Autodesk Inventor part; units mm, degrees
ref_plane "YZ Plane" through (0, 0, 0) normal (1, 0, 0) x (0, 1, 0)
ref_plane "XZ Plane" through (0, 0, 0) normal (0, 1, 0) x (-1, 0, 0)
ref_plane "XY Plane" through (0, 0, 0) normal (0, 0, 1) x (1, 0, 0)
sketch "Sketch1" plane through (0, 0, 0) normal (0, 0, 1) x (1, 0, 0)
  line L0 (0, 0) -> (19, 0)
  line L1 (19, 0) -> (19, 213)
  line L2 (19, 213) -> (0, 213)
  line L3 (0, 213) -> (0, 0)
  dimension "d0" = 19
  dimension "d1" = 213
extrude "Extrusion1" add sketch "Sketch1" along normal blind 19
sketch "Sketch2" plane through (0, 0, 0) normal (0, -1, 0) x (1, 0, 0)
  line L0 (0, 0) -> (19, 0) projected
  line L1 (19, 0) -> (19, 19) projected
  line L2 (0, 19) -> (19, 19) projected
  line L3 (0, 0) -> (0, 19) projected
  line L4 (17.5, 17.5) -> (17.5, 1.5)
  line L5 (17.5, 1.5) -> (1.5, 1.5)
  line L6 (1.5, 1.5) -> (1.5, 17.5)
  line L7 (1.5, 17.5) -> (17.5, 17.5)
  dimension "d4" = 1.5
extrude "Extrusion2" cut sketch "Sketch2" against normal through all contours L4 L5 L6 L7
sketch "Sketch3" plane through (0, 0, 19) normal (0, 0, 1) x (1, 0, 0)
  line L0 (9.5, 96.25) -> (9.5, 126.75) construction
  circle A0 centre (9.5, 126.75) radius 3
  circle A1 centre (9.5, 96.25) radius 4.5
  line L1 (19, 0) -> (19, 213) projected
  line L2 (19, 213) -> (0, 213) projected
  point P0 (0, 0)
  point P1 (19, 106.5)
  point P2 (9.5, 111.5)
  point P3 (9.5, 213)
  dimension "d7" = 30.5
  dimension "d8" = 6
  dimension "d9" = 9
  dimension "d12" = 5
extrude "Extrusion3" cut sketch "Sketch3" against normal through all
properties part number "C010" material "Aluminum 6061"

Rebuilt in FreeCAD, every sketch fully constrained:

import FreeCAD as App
import Part
import Sketcher
from FreeCAD import Vector

doc = App.newDocument("Part")
body = doc.addObject("PartDesign::Body", "Body")

sketch1 = body.newObject("Sketcher::SketchObject", "Sketch")
sketch1.AttachmentSupport = (doc.getObject("XY_Plane"), [""])
sketch1.MapMode = "FlatFace"
sketch1.addGeometry(Part.LineSegment(Vector(0, 213, 0), Vector(0, 0, 0)), False)
sketch1.addGeometry(Part.LineSegment(Vector(0, 0, 0), Vector(19, 0, 0)), False)
sketch1.addGeometry(Part.LineSegment(Vector(19, 0, 0), Vector(19, 213, 0)), False)
sketch1.addGeometry(Part.LineSegment(Vector(19, 213, 0), Vector(0, 213, 0)), False)
sketch1.addConstraint(Sketcher.Constraint("Coincident", 0, 2, 1, 1))
sketch1.addConstraint(Sketcher.Constraint("Coincident", 1, 2, 2, 1))
sketch1.addConstraint(Sketcher.Constraint("Coincident", 2, 2, 3, 1))
sketch1.addConstraint(Sketcher.Constraint("Coincident", 3, 2, 0, 1))
sketch1.addConstraint(Sketcher.Constraint("Vertical", 0))
sketch1.addConstraint(Sketcher.Constraint("Horizontal", 1))
sketch1.addConstraint(Sketcher.Constraint("Vertical", 2))
sketch1.addConstraint(Sketcher.Constraint("Horizontal", 3))
sketch1.addConstraint(Sketcher.Constraint("Coincident", 0, 2, -1, 1))
sketch1.addConstraint(Sketcher.Constraint("DistanceX", 1, 1, 1, 2, 19.0))
sketch1.addConstraint(Sketcher.Constraint("DistanceY", 0, 2, 0, 1, 213.0))
pad1 = body.newObject("PartDesign::Pad", "Pad")
pad1.Profile = sketch1
pad1.Length = 19

sketch2 = body.newObject("Sketcher::SketchObject", "Sketch001")
sketch2.AttachmentSupport = (doc.getObject("XZ_Plane"), [""])
sketch2.MapMode = "FlatFace"
sketch2.addGeometry(Part.LineSegment(Vector(17.5, 1.5, 0), Vector(17.5, 17.5, 0)), False)
sketch2.addGeometry(Part.LineSegment(Vector(17.5, 17.5, 0), Vector(1.5, 17.5, 0)), False)
sketch2.addGeometry(Part.LineSegment(Vector(1.5, 17.5, 0), Vector(1.5, 1.5, 0)), False)
sketch2.addGeometry(Part.LineSegment(Vector(1.5, 1.5, 0), Vector(17.5, 1.5, 0)), False)
sketch2.addConstraint(Sketcher.Constraint("Coincident", 0, 2, 1, 1))
sketch2.addConstraint(Sketcher.Constraint("Coincident", 1, 2, 2, 1))
sketch2.addConstraint(Sketcher.Constraint("Coincident", 2, 2, 3, 1))
sketch2.addConstraint(Sketcher.Constraint("Coincident", 3, 2, 0, 1))
sketch2.addConstraint(Sketcher.Constraint("Vertical", 0))
sketch2.addConstraint(Sketcher.Constraint("Horizontal", 1))
sketch2.addConstraint(Sketcher.Constraint("Vertical", 2))
sketch2.addConstraint(Sketcher.Constraint("Horizontal", 3))
sketch2.addConstraint(Sketcher.Constraint("Equal", 3, 0))
sketch2.addConstraint(Sketcher.Constraint("DistanceX", -1, 1, 1, 2, 1.5))
sketch2.addConstraint(Sketcher.Constraint("DistanceY", -1, 1, 2, 2, 1.5))
sketch2.addConstraint(Sketcher.Constraint("DistanceX", 1, 2, 1, 1, 16.0))
pocket1 = body.newObject("PartDesign::Pocket", "Pocket")
pocket1.Profile = sketch2
pocket1.Type = "ThroughAll"

sketch3 = body.newObject("Sketcher::SketchObject", "Sketch002")
sketch3.AttachmentSupport = (doc.getObject("XY_Plane"), [""])
sketch3.MapMode = "FlatFace"
sketch3.AttachmentOffset = App.Placement(Vector(0, 0, 19), App.Rotation())
sketch3.addGeometry(Part.Circle(Vector(9.5, 126.75, 0), Vector(0, 0, 1), 3), False)
sketch3.addGeometry(Part.Circle(Vector(9.5, 96.25, 0), Vector(0, 0, 1), 4.5), False)
sketch3.addConstraint(Sketcher.Constraint("Vertical", 0, 3, 1, 3))
sketch3.addConstraint(Sketcher.Constraint("Diameter", 0, 6.0))
sketch3.addConstraint(Sketcher.Constraint("Diameter", 1, 9.0))
sketch3.addConstraint(Sketcher.Constraint("DistanceY", 1, 3, 0, 3, 30.5))
sketch3.addConstraint(Sketcher.Constraint("DistanceX", -1, 1, 0, 3, 9.5))
sketch3.addConstraint(Sketcher.Constraint("DistanceY", -1, 1, 0, 3, 126.75))
pocket2 = body.newObject("PartDesign::Pocket", "Pocket001")
pocket2.Profile = sketch3
pocket2.Type = "ThroughAll"

doc.recompute()
